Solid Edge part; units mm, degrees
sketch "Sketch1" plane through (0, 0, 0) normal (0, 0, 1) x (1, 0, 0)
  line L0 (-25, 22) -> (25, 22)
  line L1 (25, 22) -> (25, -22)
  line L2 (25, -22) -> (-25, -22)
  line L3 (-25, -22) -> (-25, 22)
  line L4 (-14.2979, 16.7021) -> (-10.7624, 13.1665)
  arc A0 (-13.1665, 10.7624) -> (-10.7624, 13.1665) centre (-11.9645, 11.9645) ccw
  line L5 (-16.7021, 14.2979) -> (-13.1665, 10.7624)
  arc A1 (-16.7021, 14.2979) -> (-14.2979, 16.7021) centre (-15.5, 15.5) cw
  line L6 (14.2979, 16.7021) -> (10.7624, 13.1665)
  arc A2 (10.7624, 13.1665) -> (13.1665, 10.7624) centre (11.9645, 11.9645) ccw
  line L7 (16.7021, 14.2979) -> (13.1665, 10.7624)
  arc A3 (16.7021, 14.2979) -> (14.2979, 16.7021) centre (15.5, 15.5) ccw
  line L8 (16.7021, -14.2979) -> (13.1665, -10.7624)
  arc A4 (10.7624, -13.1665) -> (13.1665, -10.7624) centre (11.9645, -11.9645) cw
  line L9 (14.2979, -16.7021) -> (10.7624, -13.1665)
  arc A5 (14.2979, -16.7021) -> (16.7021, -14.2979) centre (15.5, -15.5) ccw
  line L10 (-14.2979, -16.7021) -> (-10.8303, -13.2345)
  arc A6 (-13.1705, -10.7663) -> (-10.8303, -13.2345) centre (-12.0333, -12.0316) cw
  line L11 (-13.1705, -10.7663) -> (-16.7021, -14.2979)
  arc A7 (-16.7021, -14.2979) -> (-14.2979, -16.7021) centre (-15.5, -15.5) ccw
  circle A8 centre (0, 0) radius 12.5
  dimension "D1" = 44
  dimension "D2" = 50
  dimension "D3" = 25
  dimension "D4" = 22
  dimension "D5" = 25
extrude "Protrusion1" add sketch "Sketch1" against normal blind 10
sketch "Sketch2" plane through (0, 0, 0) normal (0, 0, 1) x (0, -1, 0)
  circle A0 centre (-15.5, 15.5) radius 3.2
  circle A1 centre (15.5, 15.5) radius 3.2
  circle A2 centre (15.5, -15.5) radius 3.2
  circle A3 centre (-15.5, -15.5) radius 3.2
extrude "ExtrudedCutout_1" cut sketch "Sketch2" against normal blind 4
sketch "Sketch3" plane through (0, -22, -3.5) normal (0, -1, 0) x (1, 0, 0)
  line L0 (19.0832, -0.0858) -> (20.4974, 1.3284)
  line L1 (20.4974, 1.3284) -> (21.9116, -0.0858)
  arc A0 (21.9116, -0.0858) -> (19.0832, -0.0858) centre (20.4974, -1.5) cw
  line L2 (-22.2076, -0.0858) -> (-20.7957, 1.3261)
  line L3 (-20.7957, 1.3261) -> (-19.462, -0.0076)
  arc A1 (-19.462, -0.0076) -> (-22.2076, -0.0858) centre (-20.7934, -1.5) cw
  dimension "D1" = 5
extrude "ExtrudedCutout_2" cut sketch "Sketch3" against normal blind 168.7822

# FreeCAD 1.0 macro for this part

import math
import FreeCAD as App
import Part
import Sketcher
from FreeCAD import Vector
Q = App.Units.Quantity


def add_polygon(sketch, points):
    """Adds a closed chain of lines whose ends are joined by coincident constraints."""
    first, n = sketch.GeometryCount, len(points)
    for a, b in zip(points, points[1:] + points[:1]):
        sketch.addGeometry(Part.LineSegment(App.Vector(*a, 0), App.Vector(*b, 0)), False)
    for i in range(n):
        sketch.addConstraint(Sketcher.Constraint("Coincident", first + i, 2, first + (i + 1) % n, 1))

doc = App.newDocument("Part")
body = doc.addObject("PartDesign::Body", "Body")

# Sketch on XY plane
sketch1 = doc.addObject("Sketcher::SketchObject", "Sketch")
body.addObject(sketch1)
sketch1.AttachmentSupport = (doc.XY_Plane, [""])
sketch1.MapMode = "FlatFace"
add_polygon(sketch1, [(25, 22), (-25, 22), (-25, -22), (25, -22)])  # lines 0-3
sketch1.addGeometry(Part.LineSegment(Vector(-10.8, -13.2, 0), Vector(-14.3, -16.7, 0)), False)  # 4
sketch1.addGeometry(Part.ArcOfCircle(Part.Circle(Vector(-15.5, -15.5, 0), Vector(0, 0, 1), 1.7), math.radians(135), math.radians(315)), False)  # 5
sketch1.addGeometry(Part.LineSegment(Vector(-16.7, -14.3, 0), Vector(-13.2, -10.8, 0)), False)  # 6
sketch1.addGeometry(Part.ArcOfCircle(Part.Circle(Vector(-12, -12, 0), Vector(0, 0, 1), 1.7), math.radians(-45), math.radians(132)), False)  # 7
sketch1.addGeometry(Part.LineSegment(Vector(13.2, -10.8, 0), Vector(16.7, -14.3, 0)), False)  # 8
sketch1.addGeometry(Part.ArcOfCircle(Part.Circle(Vector(15.5, -15.5, 0), Vector(0, 0, 1), 1.7), math.radians(-135), math.radians(45)), False)  # 9
sketch1.addGeometry(Part.LineSegment(Vector(14.3, -16.7, 0), Vector(10.8, -13.2, 0)), False)  # 10
sketch1.addGeometry(Part.ArcOfCircle(Part.Circle(Vector(12, -12, 0), Vector(0, 0, 1), 1.7), math.radians(45), math.radians(225)), False)  # 11
sketch1.addGeometry(Part.ArcOfCircle(Part.Circle(Vector(-15.5, 15.5, 0), Vector(0, 0, 1), 1.7), math.radians(45), math.radians(225)), False)  # 12
sketch1.addGeometry(Part.LineSegment(Vector(-14.3, 16.7, 0), Vector(-10.8, 13.2, 0)), False)  # 13
sketch1.addGeometry(Part.ArcOfCircle(Part.Circle(Vector(-12, 12, 0), Vector(0, 0, 1), 1.7), math.radians(-135), math.radians(45)), False)  # 14
sketch1.addGeometry(Part.LineSegment(Vector(-13.2, 10.8, 0), Vector(-16.7, 14.3, 0)), False)  # 15
sketch1.addGeometry(Part.Circle(Vector(0, 0, 0), Vector(0, 0, 1), 12.5), False)  # 16
sketch1.addGeometry(Part.LineSegment(Vector(10.8, 13.2, 0), Vector(14.3, 16.7, 0)), False)  # 17
sketch1.addGeometry(Part.ArcOfCircle(Part.Circle(Vector(15.5, 15.5, 0), Vector(0, 0, 1), 1.7), math.radians(-45), math.radians(135)), False)  # 18
sketch1.addGeometry(Part.LineSegment(Vector(16.7, 14.3, 0), Vector(13.2, 10.8, 0)), False)  # 19
sketch1.addGeometry(Part.ArcOfCircle(Part.Circle(Vector(12, 12, 0), Vector(0, 0, 1), 1.7), math.radians(135), math.radians(315)), False)  # 20
sketch1.addConstraint([
    Sketcher.Constraint("Tangent", 4, 2, 5, 2),
    Sketcher.Constraint("Tangent", 5, 1, 6, 1),
    Sketcher.Constraint("Coincident", 6, 2, 7, 2),
    Sketcher.Constraint("Tangent", 7, 1, 4, 1),
    Sketcher.Constraint("Tangent", 8, 2, 9, 2),
    Sketcher.Constraint("Tangent", 9, 1, 10, 1),
    Sketcher.Constraint("Tangent", 10, 2, 11, 2),
    Sketcher.Constraint("Tangent", 11, 1, 8, 1),
    Sketcher.Constraint("Tangent", 12, 1, 13, 1),
    Sketcher.Constraint("Tangent", 13, 2, 14, 2),
    Sketcher.Constraint("Tangent", 14, 1, 15, 1),
    Sketcher.Constraint("Tangent", 15, 2, 12, 2),
    Sketcher.Constraint("Tangent", 17, 2, 18, 2),
    Sketcher.Constraint("Tangent", 18, 1, 19, 1),
    Sketcher.Constraint("Tangent", 19, 2, 20, 2),
    Sketcher.Constraint("Tangent", 20, 1, 17, 1),
    Sketcher.Constraint("Horizontal", 0),
    Sketcher.Constraint("Vertical", 1),
    Sketcher.Constraint("Horizontal", 2),
    Sketcher.Constraint("Vertical", 3),
    Sketcher.Constraint("Coincident", 16, 3, -1, 1),
    Sketcher.Constraint("Equal", 5, 9),
    Sketcher.Constraint("Equal", 9, 11),
    Sketcher.Constraint("Equal", 11, 12),
    Sketcher.Constraint("Equal", 12, 14),
    Sketcher.Constraint("Equal", 14, 18),
    Sketcher.Constraint("Equal", 18, 20),
    Sketcher.Constraint("Symmetric", 9, 3, 12, 3, -1, 1),
    Sketcher.Constraint("Symmetric", 11, 3, 14, 3, -1, 1),
    Sketcher.Constraint("Symmetric", 5, 3, 18, 3, -1, 1),
    Sketcher.Constraint("Symmetric", 0, 2, 2, 2, -1, 1),
    Sketcher.Constraint("Symmetric", 5, 3, 9, 3, -2),
    Sketcher.Constraint("Symmetric", 14, 3, 20, 3, -2),
    Sketcher.Constraint("Parallel", 4, 6),
    Sketcher.Constraint("Perpendicular", 6, 8),
    Sketcher.Constraint("Perpendicular", 15, 17),
    Sketcher.Constraint("Diameter", 16, Q("25 mm")),
    Sketcher.Constraint("DistanceX", 0, 2, -1, 1, Q("25 mm")),
    Sketcher.Constraint("Radius", 5, Q("1.7 mm")),
    Sketcher.Constraint("DistanceY", 1, 2, 1, 1, Q("44 mm")),
    Sketcher.Constraint("Distance", 8, Q("5 mm")),
    Sketcher.Constraint("DistanceX", 5, 3, 9, 3, Q("31 mm")),
    Sketcher.Constraint("DistanceY", 5, 3, 12, 3, Q("31 mm")),
    Sketcher.Constraint("Radius", 7, Q("1.7012 mm")),
    Sketcher.Constraint("Distance", 4, Q("4.904 mm")),
])
pad1 = doc.addObject("PartDesign::Pad", "Pad")
body.addObject(pad1)
pad1.Profile = sketch1
pad1.Length = 10
pad1.Reversed = True

# Sketch on XY plane
sketch2 = doc.addObject("Sketcher::SketchObject", "Sketch001")
body.addObject(sketch2)
sketch2.AttachmentSupport = (doc.XY_Plane, [""])
sketch2.MapMode = "FlatFace"
sketch2.addGeometry([
    Part.Circle(Vector(15.5, 15.5, 0), Vector(0, 0, 1), 3.2),
    Part.Circle(Vector(15.5, -15.5, 0), Vector(0, 0, 1), 3.2),
    Part.Circle(Vector(-15.5, -15.5, 0), Vector(0, 0, 1), 3.2),
    Part.Circle(Vector(-15.5, 15.5, 0), Vector(0, 0, 1), 3.2),
], False)
sketch2.addConstraint([
    Sketcher.Constraint("Equal", 0, 1),
    Sketcher.Constraint("Equal", 1, 2),
    Sketcher.Constraint("Equal", 2, 3),
    Sketcher.Constraint("Symmetric", 0, 3, 2, 3, -1, 1),
    Sketcher.Constraint("Symmetric", 1, 3, 3, 3, -1, 1),
    Sketcher.Constraint("Symmetric", 1, 3, 2, 3, -2),
    Sketcher.Constraint("Diameter", 0, Q("6.4 mm")),
    Sketcher.Constraint("DistanceY", 1, 3, 0, 3, Q("31 mm")),
    Sketcher.Constraint("DistanceX", 2, 3, 1, 3, Q("31 mm")),
])
pocket1 = doc.addObject("PartDesign::Pocket", "Pocket")
body.addObject(pocket1)
pocket1.Profile = sketch2
pocket1.Length = 4

# Sketch on XZ plane
sketch3 = doc.addObject("Sketcher::SketchObject", "Sketch002")
body.addObject(sketch3)
sketch3.AttachmentSupport = (doc.XZ_Plane, [""])
sketch3.MapMode = "FlatFace"
sketch3.AttachmentOffset = App.Placement(Vector(0, 0, 22), App.Rotation())
sketch3.addGeometry([
    Part.LineSegment(Vector(20.5, -2.2, 0), Vector(19.1, -3.6, 0)),  # 0
    Part.ArcOfCircle(Part.Circle(Vector(20.5, -5, 0), Vector(0, 0, 1), 2), math.radians(135), math.radians(405)),  # 1
    Part.LineSegment(Vector(21.9, -3.6, 0), Vector(20.5, -2.2, 0)),  # 2
    Part.LineSegment(Vector(-20.8, -2.2, 0), Vector(-22.2, -3.6, 0)),  # 3
    Part.ArcOfCircle(Part.Circle(Vector(-20.8, -5, 0), Vector(0, 0, 1), 2), math.radians(135), math.radians(408)),  # 4
    Part.LineSegment(Vector(-19.5, -3.5, 0), Vector(-20.8, -2.2, 0)),  # 5
], False)
sketch3.addConstraint([
    Sketcher.Constraint("Tangent", 0, 2, 1, 1),
    Sketcher.Constraint("Tangent", 1, 2, 2, 1),
    Sketcher.Constraint("Coincident", 2, 2, 0, 1),
    Sketcher.Constraint("Tangent", 3, 2, 4, 1),
    Sketcher.Constraint("Coincident", 4, 2, 5, 1),
    Sketcher.Constraint("Coincident", 5, 2, 3, 1),
    Sketcher.Constraint("Equal", 1, 4),
    Sketcher.Constraint("Perpendicular", 0, 2),
    Sketcher.Constraint("Perpendicular", 2, 3),
    Sketcher.Constraint("Perpendicular", 3, 5),
    Sketcher.Constraint("Horizontal", 1, 3, 4, 3),
    Sketcher.Constraint("Horizontal", 0, 2, 1, 2),
    Sketcher.Constraint("Radius", 1, Q("2 mm")),
    Sketcher.Constraint("DistanceY", 1, 3, -1, 1, Q("5 mm")),
    Sketcher.Constraint("DistanceX", 4, 3, -1, 1, Q("20.7934 mm")),
    Sketcher.Constraint("DistanceX", 4, 2, -1, 1, Q("19.462 mm")),
    Sketcher.Constraint("DistanceX", 4, 3, 1, 2, Q("42.705 mm")),
])
pocket2 = doc.addObject("PartDesign::Pocket", "Pocket001")
body.addObject(pocket2)
pocket2.Profile = sketch3
pocket2.Length = 168.7822

doc.recompute()
